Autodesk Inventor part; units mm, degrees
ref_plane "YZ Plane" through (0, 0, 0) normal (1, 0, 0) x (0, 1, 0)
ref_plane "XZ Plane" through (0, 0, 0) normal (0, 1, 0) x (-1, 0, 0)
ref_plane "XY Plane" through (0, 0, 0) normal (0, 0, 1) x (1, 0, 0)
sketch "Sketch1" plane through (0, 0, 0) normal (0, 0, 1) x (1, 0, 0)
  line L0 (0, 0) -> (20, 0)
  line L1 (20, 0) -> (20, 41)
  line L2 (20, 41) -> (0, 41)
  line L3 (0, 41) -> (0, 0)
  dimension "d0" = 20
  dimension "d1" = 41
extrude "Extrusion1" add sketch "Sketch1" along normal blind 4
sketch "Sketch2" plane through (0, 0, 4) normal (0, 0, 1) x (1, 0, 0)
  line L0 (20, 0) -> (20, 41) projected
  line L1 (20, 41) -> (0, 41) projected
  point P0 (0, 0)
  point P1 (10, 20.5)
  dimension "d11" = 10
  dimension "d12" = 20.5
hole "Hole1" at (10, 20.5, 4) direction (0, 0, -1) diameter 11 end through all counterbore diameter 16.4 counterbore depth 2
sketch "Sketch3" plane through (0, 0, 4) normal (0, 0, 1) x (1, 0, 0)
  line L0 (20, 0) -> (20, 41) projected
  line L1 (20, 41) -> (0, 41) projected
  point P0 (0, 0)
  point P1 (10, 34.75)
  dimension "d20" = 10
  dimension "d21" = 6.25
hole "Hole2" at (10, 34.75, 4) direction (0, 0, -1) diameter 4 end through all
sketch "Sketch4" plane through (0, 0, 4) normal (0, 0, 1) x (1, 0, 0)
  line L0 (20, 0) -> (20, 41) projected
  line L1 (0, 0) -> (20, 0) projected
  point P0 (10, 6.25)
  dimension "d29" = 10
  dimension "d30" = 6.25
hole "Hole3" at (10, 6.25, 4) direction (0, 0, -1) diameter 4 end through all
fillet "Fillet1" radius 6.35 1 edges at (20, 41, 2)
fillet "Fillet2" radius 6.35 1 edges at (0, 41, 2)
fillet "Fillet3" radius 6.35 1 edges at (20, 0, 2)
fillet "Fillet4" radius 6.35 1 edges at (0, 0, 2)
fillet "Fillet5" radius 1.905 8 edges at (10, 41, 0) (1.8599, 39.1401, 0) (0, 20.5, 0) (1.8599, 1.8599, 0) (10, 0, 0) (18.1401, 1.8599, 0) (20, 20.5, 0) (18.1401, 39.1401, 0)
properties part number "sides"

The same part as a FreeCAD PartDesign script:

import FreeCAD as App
import Part
import Sketcher

V = App.Vector


def edges_at(feature, points):
    """Names of the edges that pass closest to the given points."""
    edges = feature.Shape.Edges
    near = lambda p: min(range(len(edges)), key=lambda i: edges[i].distToShape(Part.Vertex(*p))[0])
    return sorted({f"Edge{near(p) + 1}" for p in points})


def add_polygon(sketch, points):
    """Adds a closed chain of lines whose ends are joined by coincident constraints."""
    first, n = sketch.GeometryCount, len(points)
    for a, b in zip(points, points[1:] + points[:1]):
        sketch.addGeometry(Part.LineSegment(App.Vector(*a, 0), App.Vector(*b, 0)), False)
    for i in range(n):
        sketch.addConstraint(Sketcher.Constraint("Coincident", first + i, 2, first + (i + 1) % n, 1))

doc = App.newDocument("Part")
body = doc.addObject("PartDesign::Body", "Body")

sketch1 = body.newObject("Sketcher::SketchObject", "Sketch")
sketch1.AttachmentSupport = (doc.getObject("XY_Plane"), [""])
sketch1.MapMode = "FlatFace"
add_polygon(sketch1, [(0, 41), (0, 0), (20, 0), (20, 41)])
sketch1.addConstraint(Sketcher.Constraint("Vertical", 0))
sketch1.addConstraint(Sketcher.Constraint("Horizontal", 1))
sketch1.addConstraint(Sketcher.Constraint("Vertical", 2))
sketch1.addConstraint(Sketcher.Constraint("Horizontal", 3))
sketch1.addConstraint(Sketcher.Constraint("Coincident", 0, 2, -1, 1))
sketch1.addConstraint(Sketcher.Constraint("DistanceX", 1, 1, 1, 2, 20.0))
sketch1.addConstraint(Sketcher.Constraint("DistanceY", 0, 2, 0, 1, 41.0))
pad1 = body.newObject("PartDesign::Pad", "Pad")
pad1.Profile = sketch1
pad1.Length = 4

sketch2 = body.newObject("Sketcher::SketchObject", "Sketch001")
sketch2.AttachmentSupport = (doc.getObject("XY_Plane"), [""])
sketch2.MapMode = "FlatFace"
sketch2.AttachmentOffset = App.Placement(V(0, 0, 4), App.Rotation())
sketch2.addGeometry(Part.Circle(V(10, 20, 0), V(0, 0, 1), 6), False)
sketch2.addConstraint(Sketcher.Constraint("Diameter", 0, 11.0))
sketch2.addConstraint(Sketcher.Constraint("DistanceX", -1, 1, 0, 3, 10.0))
sketch2.addConstraint(Sketcher.Constraint("DistanceY", -1, 1, 0, 3, 20.5))
doc.recompute()
hole = body.newObject("PartDesign::Hole", "Hole")
hole.Profile = sketch2
hole.ThreadType = "None"
hole.Diameter = 11
hole.DepthType = "ThroughAll"
hole.HoleCutType = "Counterbore"
hole.HoleCutDiameter = 16.4
hole.HoleCutDepth = 2

sketch3 = body.newObject("Sketcher::SketchObject", "Sketch002")
sketch3.AttachmentSupport = (doc.getObject("XY_Plane"), [""])
sketch3.MapMode = "FlatFace"
sketch3.AttachmentOffset = App.Placement(V(0, 0, 4), App.Rotation())
sketch3.addGeometry(Part.Circle(V(10, 34.8, 0), V(0, 0, 1), 2), False)
sketch3.addConstraint(Sketcher.Constraint("Diameter", 0, 4.0))
sketch3.addConstraint(Sketcher.Constraint("DistanceX", -1, 1, 0, 3, 10.0))
sketch3.addConstraint(Sketcher.Constraint("DistanceY", -1, 1, 0, 3, 34.75))
doc.recompute()
hole2 = body.newObject("PartDesign::Hole", "Hole001")
hole2.Profile = sketch3
hole2.ThreadType = "None"
hole2.Diameter = 4
hole2.DepthType = "ThroughAll"

sketch4 = body.newObject("Sketcher::SketchObject", "Sketch003")
sketch4.AttachmentSupport = (doc.getObject("XY_Plane"), [""])
sketch4.MapMode = "FlatFace"
sketch4.AttachmentOffset = App.Placement(V(0, 0, 4), App.Rotation())
sketch4.addGeometry(Part.Circle(V(10, 6.2, 0), V(0, 0, 1), 2), False)
sketch4.addConstraint(Sketcher.Constraint("Diameter", 0, 4.0))
sketch4.addConstraint(Sketcher.Constraint("DistanceX", -1, 1, 0, 3, 10.0))
sketch4.addConstraint(Sketcher.Constraint("DistanceY", -1, 1, 0, 3, 6.25))
doc.recompute()
hole3 = body.newObject("PartDesign::Hole", "Hole002")
hole3.Profile = sketch4
hole3.ThreadType = "None"
hole3.Diameter = 4
hole3.DepthType = "ThroughAll"
doc.recompute()

fillet = body.newObject("PartDesign::Fillet", "Fillet")
fillet.Base = (hole3, edges_at(hole3, [(20, 41, 2)]))
fillet.Radius = 6.35
doc.recompute()

fillet2 = body.newObject("PartDesign::Fillet", "Fillet001")
fillet2.Base = (fillet, edges_at(fillet, [(0, 41, 2)]))
fillet2.Radius = 6.35
doc.recompute()

fillet3 = body.newObject("PartDesign::Fillet", "Fillet002")
fillet3.Base = (fillet2, edges_at(fillet2, [(20, 0, 2)]))
fillet3.Radius = 6.35
doc.recompute()

fillet4 = body.newObject("PartDesign::Fillet", "Fillet003")
fillet4.Base = (fillet3, edges_at(fillet3, [(0, 0, 2)]))
fillet4.Radius = 6.35
doc.recompute()

fillet5 = body.newObject("PartDesign::Fillet", "Fillet004")
fillet5.Base = (fillet4, edges_at(fillet4, [
    (10, 41, 0),
    (1.86, 39.14, 0),
    (0, 20.5, 0),
    (1.86, 1.86, 0),
    (10, 0, 0),
    (18.14, 1.86, 0),
    (20, 20.5, 0),
    (18.14, 39.14, 0),
]))
fillet5.Radius = 1.905

doc.recompute()
